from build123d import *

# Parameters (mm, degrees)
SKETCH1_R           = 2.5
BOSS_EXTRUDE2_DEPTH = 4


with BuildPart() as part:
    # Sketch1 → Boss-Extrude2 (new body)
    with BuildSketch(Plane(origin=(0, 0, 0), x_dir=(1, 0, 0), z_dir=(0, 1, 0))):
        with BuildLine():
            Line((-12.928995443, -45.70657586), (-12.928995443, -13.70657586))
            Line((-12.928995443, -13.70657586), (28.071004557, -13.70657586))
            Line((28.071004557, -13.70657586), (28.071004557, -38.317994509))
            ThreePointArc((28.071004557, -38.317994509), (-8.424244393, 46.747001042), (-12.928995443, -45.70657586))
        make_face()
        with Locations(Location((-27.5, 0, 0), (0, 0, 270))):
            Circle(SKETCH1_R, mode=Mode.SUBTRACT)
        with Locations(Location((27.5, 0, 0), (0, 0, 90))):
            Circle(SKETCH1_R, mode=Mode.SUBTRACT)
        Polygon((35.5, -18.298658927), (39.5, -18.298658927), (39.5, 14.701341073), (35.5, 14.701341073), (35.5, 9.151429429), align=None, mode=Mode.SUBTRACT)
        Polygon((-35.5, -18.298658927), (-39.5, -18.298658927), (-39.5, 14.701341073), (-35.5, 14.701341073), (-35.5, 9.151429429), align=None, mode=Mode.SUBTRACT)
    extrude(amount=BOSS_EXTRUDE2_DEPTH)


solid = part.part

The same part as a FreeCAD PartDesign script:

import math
import FreeCAD as App
import Part
import Sketcher
Q = App.Units.Quantity


def add_polygon(sketch, points):
    """Adds a closed chain of lines whose ends are joined by coincident constraints."""
    first, n = sketch.GeometryCount, len(points)
    for a, b in zip(points, points[1:] + points[:1]):
        sketch.addGeometry(Part.LineSegment(App.Vector(*a, 0), App.Vector(*b, 0)), False)
    for i in range(n):
        sketch.addConstraint(Sketcher.Constraint("Coincident", first + i, 2, first + (i + 1) % n, 1))

doc = App.newDocument("Part")
body = doc.addObject("PartDesign::Body", "Body")

# Sketch on XZ plane
sketch1 = body.newObject("Sketcher::SketchObject", "Sketch")
sketch1.AttachmentSupport = (doc.getObject("XZ_Plane"), [""])
sketch1.MapMode = "FlatFace"
sketch1.addGeometry(Part.LineSegment(App.Vector(-12.928995, 45.706576, 0), App.Vector(-12.928995, 13.706576, 0)), False)  # 0
sketch1.addGeometry(Part.LineSegment(App.Vector(-12.928995, 13.706576, 0), App.Vector(28.071005, 13.706576, 0)), False)  # 1
sketch1.addGeometry(Part.LineSegment(App.Vector(28.071005, 13.706576, 0), App.Vector(28.071005, 38.317995, 0)), False)  # 2
sketch1.addGeometry(Part.ArcOfCircle(Part.Circle(App.Vector(0, 0, 0), App.Vector(0, 0, 1), 47.5), math.radians(105.794589), math.radians(413.774233)), False)  # 3
add_polygon(sketch1, [(-35.5, -14.701341), (-35.5, 18.298659), (-39.5, 18.298659), (-39.5, -14.701341)])  # lines 4-7
sketch1.addGeometry(Part.Circle(App.Vector(-27.5, 0, 0), App.Vector(0, 0, 1), 2.5), False)  # 8
sketch1.addGeometry(Part.Circle(App.Vector(27.5, 0, 0), App.Vector(0, 0, 1), 2.5), False)  # 9
add_polygon(sketch1, [(39.5, 18.298659), (35.5, 18.298659), (35.5, -14.701341), (39.5, -14.701341)])  # lines 10-13
sketch1.addConstraint([
    Sketcher.Constraint("Coincident", 0, 2, 1, 1),
    Sketcher.Constraint("Coincident", 1, 2, 2, 1),
    Sketcher.Constraint("Coincident", 2, 2, 3, 2),
    Sketcher.Constraint("Coincident", 3, 1, 0, 1),
    Sketcher.Constraint("Vertical", 0),
    Sketcher.Constraint("Horizontal", 1),
    Sketcher.Constraint("Vertical", 2),
    Sketcher.Constraint("Vertical", 4),
    Sketcher.Constraint("Horizontal", 5),
    Sketcher.Constraint("Vertical", 6),
    Sketcher.Constraint("Horizontal", 7),
    Sketcher.Constraint("Horizontal", 10),
    Sketcher.Constraint("Vertical", 11),
    Sketcher.Constraint("Horizontal", 12),
    Sketcher.Constraint("Vertical", 13),
    Sketcher.Constraint("Coincident", 3, 3, -1, 1),
    Sketcher.Constraint("Equal", 8, 9),
    Sketcher.Constraint("Symmetric", 8, 3, 9, 3, -1, 1),
    Sketcher.Constraint("Symmetric", 4, 2, 10, 2, -2),
    Sketcher.Constraint("Symmetric", 6, 2, 12, 2, -2),
    Sketcher.Constraint("PointOnObject", 8, 3, -1),
    Sketcher.Constraint("Diameter", 8, Q("5 mm")),
    Sketcher.Constraint("Radius", 3, Q("47.5 mm")),
    Sketcher.Constraint("DistanceX", 1, 1, 1, 2, Q("41 mm")),
    Sketcher.Constraint("DistanceX", 5, 2, 5, 1, Q("4 mm")),
    Sketcher.Constraint("DistanceY", 0, 2, 0, 1, Q("32 mm")),
    Sketcher.Constraint("DistanceY", 4, 1, 4, 2, Q("33 mm")),
    Sketcher.Constraint("DistanceX", 8, 3, 9, 3, Q("55 mm")),
    Sketcher.Constraint("DistanceX", 4, 2, 8, 3, Q("8 mm")),
    Sketcher.Constraint("DistanceY", 2, 1, 2, 2, Q("24.611419 mm")),
    Sketcher.Constraint("DistanceY", -1, 1, 4, 2, Q("18.298659 mm")),
])
pad1 = body.newObject("PartDesign::Pad", "Pad")
pad1.Profile = sketch1
pad1.Length = 4
pad1.Reversed = True

doc.recompute()
